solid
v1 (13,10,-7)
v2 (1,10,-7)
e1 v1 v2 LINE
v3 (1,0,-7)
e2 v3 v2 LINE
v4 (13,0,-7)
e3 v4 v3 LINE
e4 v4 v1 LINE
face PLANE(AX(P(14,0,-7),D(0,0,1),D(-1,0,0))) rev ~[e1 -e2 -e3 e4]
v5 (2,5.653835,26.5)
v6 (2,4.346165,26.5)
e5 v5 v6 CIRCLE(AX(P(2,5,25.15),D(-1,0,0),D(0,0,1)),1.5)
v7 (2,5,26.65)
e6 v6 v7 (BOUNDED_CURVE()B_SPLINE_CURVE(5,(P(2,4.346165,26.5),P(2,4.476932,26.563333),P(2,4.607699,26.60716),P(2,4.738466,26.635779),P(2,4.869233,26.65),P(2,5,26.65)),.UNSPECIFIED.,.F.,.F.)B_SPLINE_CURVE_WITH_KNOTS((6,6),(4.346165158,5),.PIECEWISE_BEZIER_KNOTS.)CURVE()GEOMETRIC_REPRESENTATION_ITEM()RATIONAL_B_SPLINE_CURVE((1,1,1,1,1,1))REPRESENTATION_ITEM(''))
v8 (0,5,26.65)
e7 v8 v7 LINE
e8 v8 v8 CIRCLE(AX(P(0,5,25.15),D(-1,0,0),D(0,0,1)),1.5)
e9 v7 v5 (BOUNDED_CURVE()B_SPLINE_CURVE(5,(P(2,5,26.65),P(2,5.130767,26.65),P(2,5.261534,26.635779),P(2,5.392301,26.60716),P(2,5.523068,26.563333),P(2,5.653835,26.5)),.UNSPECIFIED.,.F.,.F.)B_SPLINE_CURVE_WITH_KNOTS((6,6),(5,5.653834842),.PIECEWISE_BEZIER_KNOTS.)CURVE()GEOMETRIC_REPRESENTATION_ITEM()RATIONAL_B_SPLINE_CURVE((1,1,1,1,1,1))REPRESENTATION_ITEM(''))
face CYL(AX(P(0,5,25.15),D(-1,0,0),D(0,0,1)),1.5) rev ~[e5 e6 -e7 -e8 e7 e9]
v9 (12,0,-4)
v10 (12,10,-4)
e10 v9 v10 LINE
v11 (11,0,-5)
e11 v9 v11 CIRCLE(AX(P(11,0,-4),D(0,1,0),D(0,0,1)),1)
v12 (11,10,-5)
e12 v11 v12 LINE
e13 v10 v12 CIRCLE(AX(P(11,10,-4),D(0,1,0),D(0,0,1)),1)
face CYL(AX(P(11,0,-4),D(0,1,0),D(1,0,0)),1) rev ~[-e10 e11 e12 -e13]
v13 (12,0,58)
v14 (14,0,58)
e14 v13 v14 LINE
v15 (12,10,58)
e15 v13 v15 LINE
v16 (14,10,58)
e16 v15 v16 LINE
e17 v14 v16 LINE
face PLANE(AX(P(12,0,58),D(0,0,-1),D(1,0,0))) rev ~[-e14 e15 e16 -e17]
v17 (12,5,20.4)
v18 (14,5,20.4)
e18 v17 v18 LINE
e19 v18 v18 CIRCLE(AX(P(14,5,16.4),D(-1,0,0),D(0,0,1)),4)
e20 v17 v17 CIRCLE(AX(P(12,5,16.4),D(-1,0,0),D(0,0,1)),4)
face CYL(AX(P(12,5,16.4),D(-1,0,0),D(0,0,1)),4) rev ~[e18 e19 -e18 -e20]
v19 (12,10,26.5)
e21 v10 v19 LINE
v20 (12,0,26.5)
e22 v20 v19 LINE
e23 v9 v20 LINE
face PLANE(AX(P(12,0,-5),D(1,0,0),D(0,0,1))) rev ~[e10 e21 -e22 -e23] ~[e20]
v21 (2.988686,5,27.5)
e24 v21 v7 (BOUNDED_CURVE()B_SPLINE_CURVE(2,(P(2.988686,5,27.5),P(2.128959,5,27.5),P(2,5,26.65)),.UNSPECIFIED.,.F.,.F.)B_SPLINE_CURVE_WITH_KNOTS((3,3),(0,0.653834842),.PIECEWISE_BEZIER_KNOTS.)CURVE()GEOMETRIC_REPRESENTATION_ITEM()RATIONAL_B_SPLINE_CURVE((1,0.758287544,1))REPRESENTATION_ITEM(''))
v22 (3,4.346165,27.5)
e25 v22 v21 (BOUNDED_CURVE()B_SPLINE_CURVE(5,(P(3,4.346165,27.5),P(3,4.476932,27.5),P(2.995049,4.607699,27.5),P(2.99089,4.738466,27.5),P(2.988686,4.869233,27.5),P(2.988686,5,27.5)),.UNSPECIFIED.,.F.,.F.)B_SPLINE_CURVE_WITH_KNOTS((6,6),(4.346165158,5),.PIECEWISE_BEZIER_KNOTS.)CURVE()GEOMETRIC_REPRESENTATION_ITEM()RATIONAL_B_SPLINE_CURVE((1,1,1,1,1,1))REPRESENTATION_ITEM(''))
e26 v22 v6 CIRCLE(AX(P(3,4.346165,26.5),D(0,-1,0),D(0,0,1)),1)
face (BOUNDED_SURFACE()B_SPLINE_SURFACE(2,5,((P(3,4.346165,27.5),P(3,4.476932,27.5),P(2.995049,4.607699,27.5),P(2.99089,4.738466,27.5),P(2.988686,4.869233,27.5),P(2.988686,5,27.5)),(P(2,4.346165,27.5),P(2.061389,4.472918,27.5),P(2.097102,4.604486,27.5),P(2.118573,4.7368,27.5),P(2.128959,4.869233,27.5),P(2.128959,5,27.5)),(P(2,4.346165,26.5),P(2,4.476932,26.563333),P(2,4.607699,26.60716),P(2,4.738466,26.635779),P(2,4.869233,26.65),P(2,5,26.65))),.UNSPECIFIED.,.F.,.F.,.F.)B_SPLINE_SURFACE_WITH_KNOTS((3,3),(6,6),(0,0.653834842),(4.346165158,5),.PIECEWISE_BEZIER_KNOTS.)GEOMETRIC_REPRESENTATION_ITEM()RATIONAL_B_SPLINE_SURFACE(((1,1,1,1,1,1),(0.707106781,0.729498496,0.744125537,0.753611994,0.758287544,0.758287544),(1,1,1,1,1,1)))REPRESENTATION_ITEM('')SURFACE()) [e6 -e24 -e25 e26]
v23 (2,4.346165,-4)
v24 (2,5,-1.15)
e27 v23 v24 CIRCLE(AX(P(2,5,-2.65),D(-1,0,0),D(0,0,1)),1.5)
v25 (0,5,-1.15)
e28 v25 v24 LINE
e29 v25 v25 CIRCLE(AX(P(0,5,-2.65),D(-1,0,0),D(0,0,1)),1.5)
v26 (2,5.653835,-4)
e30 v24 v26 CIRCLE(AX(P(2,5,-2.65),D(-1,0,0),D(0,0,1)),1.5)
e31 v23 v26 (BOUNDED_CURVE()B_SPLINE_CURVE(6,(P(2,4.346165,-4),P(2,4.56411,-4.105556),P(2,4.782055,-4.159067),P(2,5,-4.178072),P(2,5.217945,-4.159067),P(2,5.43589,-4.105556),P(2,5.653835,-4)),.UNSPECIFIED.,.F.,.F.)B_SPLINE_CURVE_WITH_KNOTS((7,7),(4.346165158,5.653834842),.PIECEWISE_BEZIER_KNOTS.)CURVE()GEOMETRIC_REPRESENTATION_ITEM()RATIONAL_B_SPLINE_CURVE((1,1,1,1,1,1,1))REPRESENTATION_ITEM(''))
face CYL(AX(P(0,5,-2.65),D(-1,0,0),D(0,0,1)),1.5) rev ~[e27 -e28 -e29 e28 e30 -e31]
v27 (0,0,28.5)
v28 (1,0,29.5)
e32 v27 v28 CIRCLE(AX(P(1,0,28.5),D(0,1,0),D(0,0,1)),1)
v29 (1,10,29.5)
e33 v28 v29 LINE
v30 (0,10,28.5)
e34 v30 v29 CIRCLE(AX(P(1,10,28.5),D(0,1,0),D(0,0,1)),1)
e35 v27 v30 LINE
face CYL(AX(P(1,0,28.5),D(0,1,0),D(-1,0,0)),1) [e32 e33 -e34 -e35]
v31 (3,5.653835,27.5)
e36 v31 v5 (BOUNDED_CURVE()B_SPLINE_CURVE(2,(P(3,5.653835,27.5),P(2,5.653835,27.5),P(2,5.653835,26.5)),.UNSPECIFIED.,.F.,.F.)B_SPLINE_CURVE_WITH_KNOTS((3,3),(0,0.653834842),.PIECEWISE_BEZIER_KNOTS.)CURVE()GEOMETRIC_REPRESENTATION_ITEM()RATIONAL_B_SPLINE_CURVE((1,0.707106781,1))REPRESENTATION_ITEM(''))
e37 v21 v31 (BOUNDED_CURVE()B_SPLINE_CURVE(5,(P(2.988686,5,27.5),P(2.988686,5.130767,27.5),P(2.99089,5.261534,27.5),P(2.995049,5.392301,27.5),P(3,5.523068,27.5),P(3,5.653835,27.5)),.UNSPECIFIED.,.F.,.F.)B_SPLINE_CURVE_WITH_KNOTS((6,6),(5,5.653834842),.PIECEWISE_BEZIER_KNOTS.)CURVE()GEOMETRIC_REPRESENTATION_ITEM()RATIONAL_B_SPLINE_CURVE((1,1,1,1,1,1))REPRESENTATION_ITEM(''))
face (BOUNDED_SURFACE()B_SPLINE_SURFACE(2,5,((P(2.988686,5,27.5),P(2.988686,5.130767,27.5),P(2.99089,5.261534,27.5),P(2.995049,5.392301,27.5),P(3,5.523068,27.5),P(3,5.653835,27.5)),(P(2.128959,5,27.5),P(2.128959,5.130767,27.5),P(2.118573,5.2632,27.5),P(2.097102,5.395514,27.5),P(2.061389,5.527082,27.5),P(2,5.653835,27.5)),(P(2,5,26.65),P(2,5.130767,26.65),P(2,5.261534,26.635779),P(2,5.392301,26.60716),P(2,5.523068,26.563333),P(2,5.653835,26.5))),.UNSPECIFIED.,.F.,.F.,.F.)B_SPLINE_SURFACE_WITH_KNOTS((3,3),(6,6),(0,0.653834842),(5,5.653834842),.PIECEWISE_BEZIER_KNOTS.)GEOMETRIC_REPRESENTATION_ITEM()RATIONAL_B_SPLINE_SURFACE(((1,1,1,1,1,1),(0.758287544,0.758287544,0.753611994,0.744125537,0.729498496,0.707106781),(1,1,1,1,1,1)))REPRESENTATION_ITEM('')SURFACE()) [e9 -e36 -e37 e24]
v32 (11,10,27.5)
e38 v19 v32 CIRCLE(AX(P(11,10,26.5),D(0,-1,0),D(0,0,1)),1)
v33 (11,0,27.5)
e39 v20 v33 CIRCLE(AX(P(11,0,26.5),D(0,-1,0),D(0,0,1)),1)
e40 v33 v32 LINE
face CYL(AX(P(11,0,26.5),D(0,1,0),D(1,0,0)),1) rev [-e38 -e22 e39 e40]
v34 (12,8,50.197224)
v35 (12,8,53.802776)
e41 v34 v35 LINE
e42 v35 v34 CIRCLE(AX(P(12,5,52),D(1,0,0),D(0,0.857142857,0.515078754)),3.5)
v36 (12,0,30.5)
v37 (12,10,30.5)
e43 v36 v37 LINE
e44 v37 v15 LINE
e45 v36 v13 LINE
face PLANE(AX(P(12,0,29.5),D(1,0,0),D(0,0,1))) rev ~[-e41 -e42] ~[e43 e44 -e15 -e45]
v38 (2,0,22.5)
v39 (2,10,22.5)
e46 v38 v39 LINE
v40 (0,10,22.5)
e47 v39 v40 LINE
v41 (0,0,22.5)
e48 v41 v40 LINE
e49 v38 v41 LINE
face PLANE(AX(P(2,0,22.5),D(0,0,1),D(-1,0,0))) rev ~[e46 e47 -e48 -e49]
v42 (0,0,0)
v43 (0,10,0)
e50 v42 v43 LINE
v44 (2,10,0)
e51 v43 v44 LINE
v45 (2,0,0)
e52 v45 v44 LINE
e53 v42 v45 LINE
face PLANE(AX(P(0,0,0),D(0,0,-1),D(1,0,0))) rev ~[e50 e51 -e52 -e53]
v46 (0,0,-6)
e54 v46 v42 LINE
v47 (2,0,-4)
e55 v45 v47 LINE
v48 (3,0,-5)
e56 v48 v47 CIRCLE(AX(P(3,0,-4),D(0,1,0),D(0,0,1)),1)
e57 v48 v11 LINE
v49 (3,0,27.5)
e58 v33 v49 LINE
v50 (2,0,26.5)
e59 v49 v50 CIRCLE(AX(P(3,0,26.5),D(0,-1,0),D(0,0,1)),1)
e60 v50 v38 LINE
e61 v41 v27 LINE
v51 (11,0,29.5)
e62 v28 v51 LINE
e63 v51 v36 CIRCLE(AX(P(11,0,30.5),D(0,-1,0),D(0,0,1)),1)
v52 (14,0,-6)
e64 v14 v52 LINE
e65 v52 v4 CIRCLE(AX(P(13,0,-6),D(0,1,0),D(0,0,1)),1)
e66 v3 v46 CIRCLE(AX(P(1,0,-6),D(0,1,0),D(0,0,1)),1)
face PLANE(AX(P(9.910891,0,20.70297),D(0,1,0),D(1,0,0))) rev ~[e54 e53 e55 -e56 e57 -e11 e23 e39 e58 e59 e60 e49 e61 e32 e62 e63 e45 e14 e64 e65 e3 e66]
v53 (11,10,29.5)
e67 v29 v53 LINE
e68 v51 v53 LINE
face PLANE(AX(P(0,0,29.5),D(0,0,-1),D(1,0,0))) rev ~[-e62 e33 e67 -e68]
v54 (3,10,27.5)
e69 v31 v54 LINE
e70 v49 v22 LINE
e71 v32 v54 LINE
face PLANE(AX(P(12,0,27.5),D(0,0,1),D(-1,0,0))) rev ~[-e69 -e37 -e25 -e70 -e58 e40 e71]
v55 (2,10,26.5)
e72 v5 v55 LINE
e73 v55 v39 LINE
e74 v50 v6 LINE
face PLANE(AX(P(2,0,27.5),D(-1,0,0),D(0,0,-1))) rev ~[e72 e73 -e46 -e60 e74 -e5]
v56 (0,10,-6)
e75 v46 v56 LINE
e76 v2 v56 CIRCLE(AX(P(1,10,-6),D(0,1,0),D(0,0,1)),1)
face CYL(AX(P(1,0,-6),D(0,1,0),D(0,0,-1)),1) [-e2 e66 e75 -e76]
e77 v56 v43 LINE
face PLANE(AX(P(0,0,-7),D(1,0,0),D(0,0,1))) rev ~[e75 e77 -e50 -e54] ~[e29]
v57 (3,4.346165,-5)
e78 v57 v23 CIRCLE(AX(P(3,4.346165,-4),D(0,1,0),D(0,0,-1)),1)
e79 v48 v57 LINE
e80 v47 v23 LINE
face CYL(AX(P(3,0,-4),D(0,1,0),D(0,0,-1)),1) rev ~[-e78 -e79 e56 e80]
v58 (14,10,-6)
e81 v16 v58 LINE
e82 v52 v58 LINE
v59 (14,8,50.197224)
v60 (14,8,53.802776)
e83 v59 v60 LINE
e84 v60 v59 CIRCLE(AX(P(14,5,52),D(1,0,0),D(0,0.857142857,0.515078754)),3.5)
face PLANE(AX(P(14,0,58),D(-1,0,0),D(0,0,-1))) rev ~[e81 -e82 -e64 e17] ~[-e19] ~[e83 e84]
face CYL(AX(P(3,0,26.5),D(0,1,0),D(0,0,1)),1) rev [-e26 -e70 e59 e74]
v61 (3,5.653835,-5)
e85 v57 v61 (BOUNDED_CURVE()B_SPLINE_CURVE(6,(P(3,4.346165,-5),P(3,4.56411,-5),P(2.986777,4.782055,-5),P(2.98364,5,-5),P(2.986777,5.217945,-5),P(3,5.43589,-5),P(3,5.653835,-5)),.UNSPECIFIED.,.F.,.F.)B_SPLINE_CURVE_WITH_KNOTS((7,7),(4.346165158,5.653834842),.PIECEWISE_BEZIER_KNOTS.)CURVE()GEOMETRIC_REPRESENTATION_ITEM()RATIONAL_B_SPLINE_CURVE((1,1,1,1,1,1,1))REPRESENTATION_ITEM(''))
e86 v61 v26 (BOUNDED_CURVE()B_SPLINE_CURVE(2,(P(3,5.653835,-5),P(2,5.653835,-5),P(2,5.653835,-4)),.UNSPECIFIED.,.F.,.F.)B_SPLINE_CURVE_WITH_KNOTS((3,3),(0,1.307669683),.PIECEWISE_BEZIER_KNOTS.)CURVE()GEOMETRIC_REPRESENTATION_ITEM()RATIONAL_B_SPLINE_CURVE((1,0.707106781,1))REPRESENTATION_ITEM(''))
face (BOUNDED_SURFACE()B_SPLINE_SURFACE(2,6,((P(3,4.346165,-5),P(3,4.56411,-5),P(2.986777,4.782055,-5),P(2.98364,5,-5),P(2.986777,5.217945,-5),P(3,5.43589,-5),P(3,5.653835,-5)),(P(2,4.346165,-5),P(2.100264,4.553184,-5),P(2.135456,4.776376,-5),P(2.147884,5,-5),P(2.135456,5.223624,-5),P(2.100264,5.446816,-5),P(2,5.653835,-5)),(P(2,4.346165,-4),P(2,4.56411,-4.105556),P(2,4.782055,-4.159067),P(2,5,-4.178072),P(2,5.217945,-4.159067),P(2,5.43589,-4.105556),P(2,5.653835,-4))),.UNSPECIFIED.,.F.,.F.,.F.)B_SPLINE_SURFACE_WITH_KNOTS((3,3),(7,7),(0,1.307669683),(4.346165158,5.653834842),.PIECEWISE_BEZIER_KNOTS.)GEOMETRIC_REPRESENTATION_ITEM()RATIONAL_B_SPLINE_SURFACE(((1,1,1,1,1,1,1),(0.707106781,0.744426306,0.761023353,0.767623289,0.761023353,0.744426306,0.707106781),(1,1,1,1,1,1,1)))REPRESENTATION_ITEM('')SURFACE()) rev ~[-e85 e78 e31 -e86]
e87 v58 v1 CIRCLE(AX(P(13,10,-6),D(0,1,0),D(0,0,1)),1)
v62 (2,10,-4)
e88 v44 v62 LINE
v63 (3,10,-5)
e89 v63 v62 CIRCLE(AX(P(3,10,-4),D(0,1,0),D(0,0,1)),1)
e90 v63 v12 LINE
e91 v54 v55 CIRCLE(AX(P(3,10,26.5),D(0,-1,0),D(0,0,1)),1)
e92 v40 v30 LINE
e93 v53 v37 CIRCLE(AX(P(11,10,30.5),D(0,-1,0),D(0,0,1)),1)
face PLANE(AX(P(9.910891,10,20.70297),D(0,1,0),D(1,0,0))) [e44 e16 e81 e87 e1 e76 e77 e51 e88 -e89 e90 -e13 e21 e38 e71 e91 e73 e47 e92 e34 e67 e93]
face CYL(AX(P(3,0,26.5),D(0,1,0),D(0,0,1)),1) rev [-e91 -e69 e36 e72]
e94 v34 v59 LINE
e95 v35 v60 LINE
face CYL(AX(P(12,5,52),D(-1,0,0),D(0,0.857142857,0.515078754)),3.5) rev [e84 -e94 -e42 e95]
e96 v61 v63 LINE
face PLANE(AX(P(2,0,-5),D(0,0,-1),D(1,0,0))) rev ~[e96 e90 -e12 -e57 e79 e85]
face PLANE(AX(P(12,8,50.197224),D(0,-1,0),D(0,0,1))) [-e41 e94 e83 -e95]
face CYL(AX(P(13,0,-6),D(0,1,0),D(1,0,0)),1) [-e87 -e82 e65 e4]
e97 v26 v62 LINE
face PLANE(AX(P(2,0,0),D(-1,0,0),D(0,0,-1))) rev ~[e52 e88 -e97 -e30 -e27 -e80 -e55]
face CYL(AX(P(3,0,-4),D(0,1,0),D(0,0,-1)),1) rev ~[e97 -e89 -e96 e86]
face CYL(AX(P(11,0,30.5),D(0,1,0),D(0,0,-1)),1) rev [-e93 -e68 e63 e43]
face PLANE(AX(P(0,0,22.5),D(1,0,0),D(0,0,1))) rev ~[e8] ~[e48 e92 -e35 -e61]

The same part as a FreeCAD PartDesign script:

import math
import FreeCAD as App
import Part
import Sketcher


def edges_at(feature, points):
    """Names of the edges that pass closest to the given points."""
    edges = feature.Shape.Edges
    near = lambda p: min(range(len(edges)), key=lambda i: edges[i].distToShape(Part.Vertex(*p))[0])
    return sorted({f"Edge{near(p) + 1}" for p in points})


def add_polygon(sketch, points):
    """Adds a closed chain of lines whose ends are joined by coincident constraints."""
    first, n = sketch.GeometryCount, len(points)
    for a, b in zip(points, points[1:] + points[:1]):
        sketch.addGeometry(Part.LineSegment(App.Vector(*a, 0), App.Vector(*b, 0)), False)
    for i in range(n):
        sketch.addConstraint(Sketcher.Constraint("Coincident", first + i, 2, first + (i + 1) % n, 1))

doc = App.newDocument("Part")
params = doc.addObject("Spreadsheet::Sheet", "Params")
for row, (alias, value) in enumerate([
    ("sketch1_width", "10 mm"),
    ("sketch1_width2", "2 mm"),
    ("sketch1_height", "5 mm"),
    ("sketch1_height2", "7 mm"),
    ("sketch1_height3", "65 mm"),
    ("pad1_length", "10 mm"),
    ("sketch2_diameter", "3 mm"),
    ("pocket1_length", "2 mm"),
    ("sketch3_diameter", "8 mm"),
    ("sketch3_radius", "3.5 mm"),
    ("pocket2_length", "2 mm"),
    ("fillet_radius", "1 mm"),
], start=1):
    params.set(f"A{row}", alias)
    params.set(f"B{row}", "=" + value)
    params.setAlias(f"B{row}", alias)

body = doc.addObject("PartDesign::Body", "Body")

sketch1 = doc.addObject("Sketcher::SketchObject", "Sketch")
body.addObject(sketch1)
sketch1.AttachmentSupport = (doc.XZ_Plane, [""])
sketch1.MapMode = "FlatFace"
add_polygon(sketch1, [(12, -5), (12, 27.5), (2, 27.5), (2, 22.5), (0, 22.5), (0, 29.5), (12, 29.5), (12, 58), (14, 58), (14, -7), (0, -7), (0, 0), (2, 0), (2, -5)])
sketch1.addConstraint(Sketcher.Constraint("Vertical", 0))
sketch1.addConstraint(Sketcher.Constraint("Horizontal", 1))
sketch1.addConstraint(Sketcher.Constraint("Vertical", 2))
sketch1.addConstraint(Sketcher.Constraint("Horizontal", 3))
sketch1.addConstraint(Sketcher.Constraint("Vertical", 4))
sketch1.addConstraint(Sketcher.Constraint("Horizontal", 5))
sketch1.addConstraint(Sketcher.Constraint("Vertical", 6))
sketch1.addConstraint(Sketcher.Constraint("Horizontal", 7))
sketch1.addConstraint(Sketcher.Constraint("Vertical", 8))
sketch1.addConstraint(Sketcher.Constraint("Horizontal", 9))
sketch1.addConstraint(Sketcher.Constraint("Vertical", 10))
sketch1.addConstraint(Sketcher.Constraint("Horizontal", 11))
sketch1.addConstraint(Sketcher.Constraint("Vertical", 12))
sketch1.addConstraint(Sketcher.Constraint("Horizontal", 13))
sketch1.addConstraint(Sketcher.Constraint("Coincident", 10, 2, -1, 1))
sketch1.addConstraint(Sketcher.Constraint("PointOnObject", 3, 2, -2))
sketch1.addConstraint(Sketcher.Constraint("Vertical", 0, 2, 5, 2))
sketch1.addConstraint(Sketcher.Constraint("Vertical", 2, 2, 11, 2))
sketch1.addConstraint(Sketcher.Constraint("Equal", 3, 7))
sketch1.addConstraint(Sketcher.Constraint("Equal", 4, 10))
sketch1.addConstraint(Sketcher.Constraint("Equal", 2, 12))
sketch1.addConstraint(Sketcher.Constraint("DistanceX", 1, 2, 1, 1, 10.0))
sketch1.addConstraint(Sketcher.Constraint("DistanceX", 3, 2, 3, 1, 2.0))
sketch1.addConstraint(Sketcher.Constraint("DistanceY", 2, 2, 2, 1, 5.0))
sketch1.addConstraint(Sketcher.Constraint("DistanceY", 4, 1, 4, 2, 7.0))
sketch1.addConstraint(Sketcher.Constraint("DistanceY", 8, 2, 8, 1, 65.0))
sketch1.addConstraint(Sketcher.Constraint("DistanceY", 0, 1, 0, 2, 32.5))
sketch1.setExpression("Constraints[35]", "Params.sketch1_width")
sketch1.setExpression("Constraints[36]", "Params.sketch1_width2")
sketch1.setExpression("Constraints[37]", "Params.sketch1_height")
sketch1.setExpression("Constraints[38]", "Params.sketch1_height2")
sketch1.setExpression("Constraints[39]", "Params.sketch1_height3")
pad1 = doc.addObject("PartDesign::Pad", "Pad")
body.addObject(pad1)
pad1.Profile = sketch1
pad1.setExpression("Length", "Params.pad1_length")
pad1.Reversed = True

sketch2 = doc.addObject("Sketcher::SketchObject", "Sketch001")
body.addObject(sketch2)
sketch2.AttachmentSupport = (doc.YZ_Plane, [""])
sketch2.MapMode = "FlatFace"
sketch2.addGeometry(Part.Circle(App.Vector(5, 25.1, 0), App.Vector(0, 0, 1), 1.5), False)
sketch2.addGeometry(Part.Circle(App.Vector(5, -2.6, 0), App.Vector(0, 0, 1), 1.5), False)
sketch2.addConstraint(Sketcher.Constraint("Equal", 0, 1))
sketch2.addConstraint(Sketcher.Constraint("Vertical", 0, 3, 1, 3))
sketch2.addConstraint(Sketcher.Constraint("Diameter", 0, 3.0))
sketch2.addConstraint(Sketcher.Constraint("DistanceX", -1, 1, 0, 3, 5.0))
sketch2.addConstraint(Sketcher.Constraint("DistanceY", 1, 3, 0, 3, 27.8))
sketch2.addConstraint(Sketcher.Constraint("DistanceY", -1, 1, 0, 3, 25.15))
sketch2.setExpression("Constraints[2]", "Params.sketch2_diameter")
pocket1 = doc.addObject("PartDesign::Pocket", "Pocket")
body.addObject(pocket1)
pocket1.Profile = sketch2
pocket1.setExpression("Length", "Params.pocket1_length")
pocket1.Reversed = True

sketch3 = doc.addObject("Sketcher::SketchObject", "Sketch002")
body.addObject(sketch3)
sketch3.AttachmentSupport = (doc.YZ_Plane, [""])
sketch3.MapMode = "FlatFace"
sketch3.AttachmentOffset = App.Placement(App.Vector(0, 0, 12), App.Rotation())
sketch3.addGeometry(Part.Circle(App.Vector(5, 16.4, 0), App.Vector(0, 0, 1), 4), False)
sketch3.addGeometry(Part.LineSegment(App.Vector(8, 53.8, 0), App.Vector(8, 50.2, 0)), False)
sketch3.addGeometry(Part.ArcOfCircle(Part.Circle(App.Vector(5, 52, 0), App.Vector(0, 0, 1), 3.5), math.radians(31), math.radians(329)), False)
sketch3.addConstraint(Sketcher.Constraint("Coincident", 1, 1, 2, 1))
sketch3.addConstraint(Sketcher.Constraint("Coincident", 2, 2, 1, 2))
sketch3.addConstraint(Sketcher.Constraint("Vertical", 1))
sketch3.addConstraint(Sketcher.Constraint("Vertical", 0, 3, 2, 3))
sketch3.addConstraint(Sketcher.Constraint("Diameter", 0, 8.0))
sketch3.addConstraint(Sketcher.Constraint("Radius", 2, 3.5))
sketch3.addConstraint(Sketcher.Constraint("DistanceX", -1, 1, 0, 3, 5.0))
sketch3.addConstraint(Sketcher.Constraint("DistanceY", -1, 1, 2, 3, 52.0))
sketch3.addConstraint(Sketcher.Constraint("DistanceX", -1, 1, 1, 1, 8.0))
sketch3.addConstraint(Sketcher.Constraint("DistanceY", -1, 1, 0, 3, 16.4))
sketch3.setExpression("Constraints[4]", "Params.sketch3_diameter")
sketch3.setExpression("Constraints[5]", "Params.sketch3_radius")
pocket2 = doc.addObject("PartDesign::Pocket", "Pocket001")
body.addObject(pocket2)
pocket2.Profile = sketch3
pocket2.setExpression("Length", "Params.pocket2_length")
pocket2.Reversed = True
doc.recompute()

fillet = doc.addObject("PartDesign::Fillet", "Fillet")
body.addObject(fillet)
fillet.Base = (pocket2, edges_at(pocket2, [
    (2, 5, 27.5),
    (12, 5, 27.5),
    (12, 5, -5),
    (2, 5, -5),
    (0, 5, -7),
    (14, 5, -7),
    (12, 5, 29.5),
    (0, 5, 29.5),
]))
fillet.setExpression("Radius", "Params.fillet_radius")

doc.recompute()
